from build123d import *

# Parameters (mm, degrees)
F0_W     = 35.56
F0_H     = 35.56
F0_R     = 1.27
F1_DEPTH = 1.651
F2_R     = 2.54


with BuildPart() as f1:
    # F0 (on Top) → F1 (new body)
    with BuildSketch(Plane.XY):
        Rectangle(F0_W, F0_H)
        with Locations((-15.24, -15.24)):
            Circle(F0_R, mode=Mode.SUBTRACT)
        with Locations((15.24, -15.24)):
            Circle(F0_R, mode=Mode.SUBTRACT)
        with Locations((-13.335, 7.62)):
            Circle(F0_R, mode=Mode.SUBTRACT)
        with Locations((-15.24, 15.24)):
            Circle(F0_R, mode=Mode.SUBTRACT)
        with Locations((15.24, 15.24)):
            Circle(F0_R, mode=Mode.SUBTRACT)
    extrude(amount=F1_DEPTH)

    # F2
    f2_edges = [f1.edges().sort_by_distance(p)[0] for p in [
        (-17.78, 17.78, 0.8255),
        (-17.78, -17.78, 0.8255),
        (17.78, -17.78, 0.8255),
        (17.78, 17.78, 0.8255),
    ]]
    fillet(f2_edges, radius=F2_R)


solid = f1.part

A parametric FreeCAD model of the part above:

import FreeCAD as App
import Part
import Sketcher

V = App.Vector
Q = App.Units.Quantity


def edges_at(feature, points):
    """Names of the edges that pass closest to the given points."""
    edges = feature.Shape.Edges
    near = lambda p: min(range(len(edges)), key=lambda i: edges[i].distToShape(Part.Vertex(*p))[0])
    return sorted({f"Edge{near(p) + 1}" for p in points})

doc = App.newDocument("Part")
body = doc.addObject("PartDesign::Body", "Body")

sketch1 = body.newObject("Sketcher::SketchObject", "Sketch")
sketch1.AttachmentSupport = (doc.getObject("XY_Plane"), [""])
sketch1.MapMode = "FlatFace"
sketch1.addGeometry(Part.LineSegment(V(-17.8, 17.8, 0), V(-17.8, -17.8, 0)), False)
sketch1.addGeometry(Part.LineSegment(V(-17.8, -17.8, 0), V(17.8, -17.8, 0)), False)
sketch1.addGeometry(Part.LineSegment(V(17.8, -17.8, 0), V(17.8, 17.8, 0)), False)
sketch1.addGeometry(Part.LineSegment(V(17.8, 17.8, 0), V(-17.8, 17.8, 0)), False)
sketch1.addGeometry(Part.Circle(V(-15.2, -15.2, 0), V(0, 0, 1), 1.3), False)
sketch1.addGeometry(Part.Circle(V(15.2, -15.2, 0), V(0, 0, 1), 1.3), False)
sketch1.addGeometry(Part.Circle(V(-13.3, 7.6, 0), V(0, 0, 1), 1.3), False)
sketch1.addGeometry(Part.Circle(V(-15.2, 15.2, 0), V(0, 0, 1), 1.3), False)
sketch1.addGeometry(Part.Circle(V(15.2, 15.2, 0), V(0, 0, 1), 1.3), False)
sketch1.addConstraint(Sketcher.Constraint("Coincident", 0, 2, 1, 1))
sketch1.addConstraint(Sketcher.Constraint("Coincident", 1, 2, 2, 1))
sketch1.addConstraint(Sketcher.Constraint("Coincident", 2, 2, 3, 1))
sketch1.addConstraint(Sketcher.Constraint("Coincident", 3, 2, 0, 1))
sketch1.addConstraint(Sketcher.Constraint("Vertical", 0))
sketch1.addConstraint(Sketcher.Constraint("Horizontal", 1))
sketch1.addConstraint(Sketcher.Constraint("Vertical", 2))
sketch1.addConstraint(Sketcher.Constraint("Horizontal", 3))
sketch1.addConstraint(Sketcher.Constraint("Equal", 4, 5))
sketch1.addConstraint(Sketcher.Constraint("Equal", 5, 6))
sketch1.addConstraint(Sketcher.Constraint("Equal", 6, 7))
sketch1.addConstraint(Sketcher.Constraint("Equal", 7, 8))
sketch1.addConstraint(Sketcher.Constraint("Symmetric", 5, 3, 7, 3, -1, 1))
sketch1.addConstraint(Sketcher.Constraint("Symmetric", 4, 3, 8, 3, -1, 1))
sketch1.addConstraint(Sketcher.Constraint("Symmetric", 0, 2, 2, 2, -1, 1))
sketch1.addConstraint(Sketcher.Constraint("Symmetric", 4, 3, 5, 3, -2))
sketch1.addConstraint(Sketcher.Constraint("Equal", 3, 0))
sketch1.addConstraint(Sketcher.Constraint("Diameter", 4, Q("0.1 in")))
sketch1.addConstraint(Sketcher.Constraint("DistanceX", 1, 1, 1, 2, Q("1.4 in")))
sketch1.addConstraint(Sketcher.Constraint("DistanceY", 0, 2, 6, 3, Q("1 in")))
sketch1.addConstraint(Sketcher.Constraint("DistanceX", 4, 3, -1, 1, Q("0.6 in")))
sketch1.addConstraint(Sketcher.Constraint("DistanceY", 4, 3, -1, 1, Q("0.6 in")))
sketch1.addConstraint(Sketcher.Constraint("DistanceX", 6, 3, -1, 1, Q("0.525 in")))
pad1 = body.newObject("PartDesign::Pad", "Pad")
pad1.Profile = sketch1
pad1.Length = Q("0.065 in")
doc.recompute()

fillet = body.newObject("PartDesign::Fillet", "Fillet")
fillet.Base = (pad1, edges_at(pad1, [
    (-17.78, 17.78, 0.826),
    (-17.78, -17.78, 0.826),
    (17.78, -17.78, 0.826),
    (17.78, 17.78, 0.826),
]))
fillet.Radius = Q("0.1 in")

doc.recompute()
